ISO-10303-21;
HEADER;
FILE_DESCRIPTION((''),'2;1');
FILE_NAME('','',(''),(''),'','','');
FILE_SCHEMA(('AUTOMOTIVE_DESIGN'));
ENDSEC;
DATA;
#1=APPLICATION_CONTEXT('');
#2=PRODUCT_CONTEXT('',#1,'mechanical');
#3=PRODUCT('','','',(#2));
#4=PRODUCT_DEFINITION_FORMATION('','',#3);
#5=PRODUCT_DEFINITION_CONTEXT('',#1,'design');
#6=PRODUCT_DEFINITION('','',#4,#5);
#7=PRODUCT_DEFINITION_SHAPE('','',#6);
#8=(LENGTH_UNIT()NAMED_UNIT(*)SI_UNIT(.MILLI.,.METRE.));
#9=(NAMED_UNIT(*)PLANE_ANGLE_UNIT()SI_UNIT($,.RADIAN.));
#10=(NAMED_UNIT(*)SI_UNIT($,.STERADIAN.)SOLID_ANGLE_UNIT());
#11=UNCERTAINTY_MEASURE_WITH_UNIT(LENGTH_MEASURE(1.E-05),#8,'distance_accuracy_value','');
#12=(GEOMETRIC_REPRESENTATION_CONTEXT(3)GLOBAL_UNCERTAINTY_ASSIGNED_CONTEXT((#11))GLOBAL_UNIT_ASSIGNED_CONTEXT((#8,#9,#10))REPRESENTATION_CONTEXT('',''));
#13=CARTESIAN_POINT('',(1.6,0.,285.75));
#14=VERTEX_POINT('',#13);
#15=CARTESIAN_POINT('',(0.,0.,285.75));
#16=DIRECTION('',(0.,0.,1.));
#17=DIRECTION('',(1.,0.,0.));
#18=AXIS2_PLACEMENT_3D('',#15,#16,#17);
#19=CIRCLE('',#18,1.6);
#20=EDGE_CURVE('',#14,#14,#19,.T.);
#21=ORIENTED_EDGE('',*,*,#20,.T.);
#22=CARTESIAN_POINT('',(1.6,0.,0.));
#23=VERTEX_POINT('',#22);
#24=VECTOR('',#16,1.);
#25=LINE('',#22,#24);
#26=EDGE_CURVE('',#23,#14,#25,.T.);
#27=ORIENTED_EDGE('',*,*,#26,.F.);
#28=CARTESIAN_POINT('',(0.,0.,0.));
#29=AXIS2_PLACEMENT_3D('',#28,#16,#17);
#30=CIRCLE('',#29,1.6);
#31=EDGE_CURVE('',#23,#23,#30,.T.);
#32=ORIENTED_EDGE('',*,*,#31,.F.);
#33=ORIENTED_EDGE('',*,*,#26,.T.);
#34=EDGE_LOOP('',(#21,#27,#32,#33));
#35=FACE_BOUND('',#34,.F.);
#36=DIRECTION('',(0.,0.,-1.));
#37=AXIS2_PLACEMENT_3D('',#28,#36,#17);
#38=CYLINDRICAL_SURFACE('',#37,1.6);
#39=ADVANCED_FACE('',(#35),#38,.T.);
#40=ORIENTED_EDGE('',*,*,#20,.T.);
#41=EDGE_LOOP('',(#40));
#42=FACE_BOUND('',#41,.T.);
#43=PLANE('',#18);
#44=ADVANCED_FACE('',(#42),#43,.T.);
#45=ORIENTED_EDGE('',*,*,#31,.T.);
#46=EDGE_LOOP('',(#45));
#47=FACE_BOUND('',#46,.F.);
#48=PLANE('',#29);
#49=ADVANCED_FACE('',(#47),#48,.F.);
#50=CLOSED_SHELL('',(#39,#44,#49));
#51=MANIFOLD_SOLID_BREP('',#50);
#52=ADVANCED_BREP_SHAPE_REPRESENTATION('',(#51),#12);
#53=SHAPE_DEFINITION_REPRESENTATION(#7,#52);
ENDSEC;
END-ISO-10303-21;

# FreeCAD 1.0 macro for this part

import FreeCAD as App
import Part
import Sketcher
from FreeCAD import Vector

doc = App.newDocument("Part")
body = doc.addObject("PartDesign::Body", "Body")

# Sketch on XY plane
sketch1 = doc.addObject("Sketcher::SketchObject", "Sketch")
body.addObject(sketch1)
sketch1.AttachmentSupport = (doc.XY_Plane, [""])
sketch1.MapMode = "FlatFace"
sketch1.addGeometry(Part.Circle(Vector(0, 0, 0), Vector(0, 0, 1), 1.6), False)
sketch1.addConstraint(Sketcher.Constraint("Coincident", 0, 3, -1, 1))
sketch1.addConstraint(Sketcher.Constraint("Diameter", 0, 3.2))
pad1 = doc.addObject("PartDesign::Pad", "Pad")
body.addObject(pad1)
pad1.Profile = sketch1
pad1.Length = 285.75

doc.recompute()
